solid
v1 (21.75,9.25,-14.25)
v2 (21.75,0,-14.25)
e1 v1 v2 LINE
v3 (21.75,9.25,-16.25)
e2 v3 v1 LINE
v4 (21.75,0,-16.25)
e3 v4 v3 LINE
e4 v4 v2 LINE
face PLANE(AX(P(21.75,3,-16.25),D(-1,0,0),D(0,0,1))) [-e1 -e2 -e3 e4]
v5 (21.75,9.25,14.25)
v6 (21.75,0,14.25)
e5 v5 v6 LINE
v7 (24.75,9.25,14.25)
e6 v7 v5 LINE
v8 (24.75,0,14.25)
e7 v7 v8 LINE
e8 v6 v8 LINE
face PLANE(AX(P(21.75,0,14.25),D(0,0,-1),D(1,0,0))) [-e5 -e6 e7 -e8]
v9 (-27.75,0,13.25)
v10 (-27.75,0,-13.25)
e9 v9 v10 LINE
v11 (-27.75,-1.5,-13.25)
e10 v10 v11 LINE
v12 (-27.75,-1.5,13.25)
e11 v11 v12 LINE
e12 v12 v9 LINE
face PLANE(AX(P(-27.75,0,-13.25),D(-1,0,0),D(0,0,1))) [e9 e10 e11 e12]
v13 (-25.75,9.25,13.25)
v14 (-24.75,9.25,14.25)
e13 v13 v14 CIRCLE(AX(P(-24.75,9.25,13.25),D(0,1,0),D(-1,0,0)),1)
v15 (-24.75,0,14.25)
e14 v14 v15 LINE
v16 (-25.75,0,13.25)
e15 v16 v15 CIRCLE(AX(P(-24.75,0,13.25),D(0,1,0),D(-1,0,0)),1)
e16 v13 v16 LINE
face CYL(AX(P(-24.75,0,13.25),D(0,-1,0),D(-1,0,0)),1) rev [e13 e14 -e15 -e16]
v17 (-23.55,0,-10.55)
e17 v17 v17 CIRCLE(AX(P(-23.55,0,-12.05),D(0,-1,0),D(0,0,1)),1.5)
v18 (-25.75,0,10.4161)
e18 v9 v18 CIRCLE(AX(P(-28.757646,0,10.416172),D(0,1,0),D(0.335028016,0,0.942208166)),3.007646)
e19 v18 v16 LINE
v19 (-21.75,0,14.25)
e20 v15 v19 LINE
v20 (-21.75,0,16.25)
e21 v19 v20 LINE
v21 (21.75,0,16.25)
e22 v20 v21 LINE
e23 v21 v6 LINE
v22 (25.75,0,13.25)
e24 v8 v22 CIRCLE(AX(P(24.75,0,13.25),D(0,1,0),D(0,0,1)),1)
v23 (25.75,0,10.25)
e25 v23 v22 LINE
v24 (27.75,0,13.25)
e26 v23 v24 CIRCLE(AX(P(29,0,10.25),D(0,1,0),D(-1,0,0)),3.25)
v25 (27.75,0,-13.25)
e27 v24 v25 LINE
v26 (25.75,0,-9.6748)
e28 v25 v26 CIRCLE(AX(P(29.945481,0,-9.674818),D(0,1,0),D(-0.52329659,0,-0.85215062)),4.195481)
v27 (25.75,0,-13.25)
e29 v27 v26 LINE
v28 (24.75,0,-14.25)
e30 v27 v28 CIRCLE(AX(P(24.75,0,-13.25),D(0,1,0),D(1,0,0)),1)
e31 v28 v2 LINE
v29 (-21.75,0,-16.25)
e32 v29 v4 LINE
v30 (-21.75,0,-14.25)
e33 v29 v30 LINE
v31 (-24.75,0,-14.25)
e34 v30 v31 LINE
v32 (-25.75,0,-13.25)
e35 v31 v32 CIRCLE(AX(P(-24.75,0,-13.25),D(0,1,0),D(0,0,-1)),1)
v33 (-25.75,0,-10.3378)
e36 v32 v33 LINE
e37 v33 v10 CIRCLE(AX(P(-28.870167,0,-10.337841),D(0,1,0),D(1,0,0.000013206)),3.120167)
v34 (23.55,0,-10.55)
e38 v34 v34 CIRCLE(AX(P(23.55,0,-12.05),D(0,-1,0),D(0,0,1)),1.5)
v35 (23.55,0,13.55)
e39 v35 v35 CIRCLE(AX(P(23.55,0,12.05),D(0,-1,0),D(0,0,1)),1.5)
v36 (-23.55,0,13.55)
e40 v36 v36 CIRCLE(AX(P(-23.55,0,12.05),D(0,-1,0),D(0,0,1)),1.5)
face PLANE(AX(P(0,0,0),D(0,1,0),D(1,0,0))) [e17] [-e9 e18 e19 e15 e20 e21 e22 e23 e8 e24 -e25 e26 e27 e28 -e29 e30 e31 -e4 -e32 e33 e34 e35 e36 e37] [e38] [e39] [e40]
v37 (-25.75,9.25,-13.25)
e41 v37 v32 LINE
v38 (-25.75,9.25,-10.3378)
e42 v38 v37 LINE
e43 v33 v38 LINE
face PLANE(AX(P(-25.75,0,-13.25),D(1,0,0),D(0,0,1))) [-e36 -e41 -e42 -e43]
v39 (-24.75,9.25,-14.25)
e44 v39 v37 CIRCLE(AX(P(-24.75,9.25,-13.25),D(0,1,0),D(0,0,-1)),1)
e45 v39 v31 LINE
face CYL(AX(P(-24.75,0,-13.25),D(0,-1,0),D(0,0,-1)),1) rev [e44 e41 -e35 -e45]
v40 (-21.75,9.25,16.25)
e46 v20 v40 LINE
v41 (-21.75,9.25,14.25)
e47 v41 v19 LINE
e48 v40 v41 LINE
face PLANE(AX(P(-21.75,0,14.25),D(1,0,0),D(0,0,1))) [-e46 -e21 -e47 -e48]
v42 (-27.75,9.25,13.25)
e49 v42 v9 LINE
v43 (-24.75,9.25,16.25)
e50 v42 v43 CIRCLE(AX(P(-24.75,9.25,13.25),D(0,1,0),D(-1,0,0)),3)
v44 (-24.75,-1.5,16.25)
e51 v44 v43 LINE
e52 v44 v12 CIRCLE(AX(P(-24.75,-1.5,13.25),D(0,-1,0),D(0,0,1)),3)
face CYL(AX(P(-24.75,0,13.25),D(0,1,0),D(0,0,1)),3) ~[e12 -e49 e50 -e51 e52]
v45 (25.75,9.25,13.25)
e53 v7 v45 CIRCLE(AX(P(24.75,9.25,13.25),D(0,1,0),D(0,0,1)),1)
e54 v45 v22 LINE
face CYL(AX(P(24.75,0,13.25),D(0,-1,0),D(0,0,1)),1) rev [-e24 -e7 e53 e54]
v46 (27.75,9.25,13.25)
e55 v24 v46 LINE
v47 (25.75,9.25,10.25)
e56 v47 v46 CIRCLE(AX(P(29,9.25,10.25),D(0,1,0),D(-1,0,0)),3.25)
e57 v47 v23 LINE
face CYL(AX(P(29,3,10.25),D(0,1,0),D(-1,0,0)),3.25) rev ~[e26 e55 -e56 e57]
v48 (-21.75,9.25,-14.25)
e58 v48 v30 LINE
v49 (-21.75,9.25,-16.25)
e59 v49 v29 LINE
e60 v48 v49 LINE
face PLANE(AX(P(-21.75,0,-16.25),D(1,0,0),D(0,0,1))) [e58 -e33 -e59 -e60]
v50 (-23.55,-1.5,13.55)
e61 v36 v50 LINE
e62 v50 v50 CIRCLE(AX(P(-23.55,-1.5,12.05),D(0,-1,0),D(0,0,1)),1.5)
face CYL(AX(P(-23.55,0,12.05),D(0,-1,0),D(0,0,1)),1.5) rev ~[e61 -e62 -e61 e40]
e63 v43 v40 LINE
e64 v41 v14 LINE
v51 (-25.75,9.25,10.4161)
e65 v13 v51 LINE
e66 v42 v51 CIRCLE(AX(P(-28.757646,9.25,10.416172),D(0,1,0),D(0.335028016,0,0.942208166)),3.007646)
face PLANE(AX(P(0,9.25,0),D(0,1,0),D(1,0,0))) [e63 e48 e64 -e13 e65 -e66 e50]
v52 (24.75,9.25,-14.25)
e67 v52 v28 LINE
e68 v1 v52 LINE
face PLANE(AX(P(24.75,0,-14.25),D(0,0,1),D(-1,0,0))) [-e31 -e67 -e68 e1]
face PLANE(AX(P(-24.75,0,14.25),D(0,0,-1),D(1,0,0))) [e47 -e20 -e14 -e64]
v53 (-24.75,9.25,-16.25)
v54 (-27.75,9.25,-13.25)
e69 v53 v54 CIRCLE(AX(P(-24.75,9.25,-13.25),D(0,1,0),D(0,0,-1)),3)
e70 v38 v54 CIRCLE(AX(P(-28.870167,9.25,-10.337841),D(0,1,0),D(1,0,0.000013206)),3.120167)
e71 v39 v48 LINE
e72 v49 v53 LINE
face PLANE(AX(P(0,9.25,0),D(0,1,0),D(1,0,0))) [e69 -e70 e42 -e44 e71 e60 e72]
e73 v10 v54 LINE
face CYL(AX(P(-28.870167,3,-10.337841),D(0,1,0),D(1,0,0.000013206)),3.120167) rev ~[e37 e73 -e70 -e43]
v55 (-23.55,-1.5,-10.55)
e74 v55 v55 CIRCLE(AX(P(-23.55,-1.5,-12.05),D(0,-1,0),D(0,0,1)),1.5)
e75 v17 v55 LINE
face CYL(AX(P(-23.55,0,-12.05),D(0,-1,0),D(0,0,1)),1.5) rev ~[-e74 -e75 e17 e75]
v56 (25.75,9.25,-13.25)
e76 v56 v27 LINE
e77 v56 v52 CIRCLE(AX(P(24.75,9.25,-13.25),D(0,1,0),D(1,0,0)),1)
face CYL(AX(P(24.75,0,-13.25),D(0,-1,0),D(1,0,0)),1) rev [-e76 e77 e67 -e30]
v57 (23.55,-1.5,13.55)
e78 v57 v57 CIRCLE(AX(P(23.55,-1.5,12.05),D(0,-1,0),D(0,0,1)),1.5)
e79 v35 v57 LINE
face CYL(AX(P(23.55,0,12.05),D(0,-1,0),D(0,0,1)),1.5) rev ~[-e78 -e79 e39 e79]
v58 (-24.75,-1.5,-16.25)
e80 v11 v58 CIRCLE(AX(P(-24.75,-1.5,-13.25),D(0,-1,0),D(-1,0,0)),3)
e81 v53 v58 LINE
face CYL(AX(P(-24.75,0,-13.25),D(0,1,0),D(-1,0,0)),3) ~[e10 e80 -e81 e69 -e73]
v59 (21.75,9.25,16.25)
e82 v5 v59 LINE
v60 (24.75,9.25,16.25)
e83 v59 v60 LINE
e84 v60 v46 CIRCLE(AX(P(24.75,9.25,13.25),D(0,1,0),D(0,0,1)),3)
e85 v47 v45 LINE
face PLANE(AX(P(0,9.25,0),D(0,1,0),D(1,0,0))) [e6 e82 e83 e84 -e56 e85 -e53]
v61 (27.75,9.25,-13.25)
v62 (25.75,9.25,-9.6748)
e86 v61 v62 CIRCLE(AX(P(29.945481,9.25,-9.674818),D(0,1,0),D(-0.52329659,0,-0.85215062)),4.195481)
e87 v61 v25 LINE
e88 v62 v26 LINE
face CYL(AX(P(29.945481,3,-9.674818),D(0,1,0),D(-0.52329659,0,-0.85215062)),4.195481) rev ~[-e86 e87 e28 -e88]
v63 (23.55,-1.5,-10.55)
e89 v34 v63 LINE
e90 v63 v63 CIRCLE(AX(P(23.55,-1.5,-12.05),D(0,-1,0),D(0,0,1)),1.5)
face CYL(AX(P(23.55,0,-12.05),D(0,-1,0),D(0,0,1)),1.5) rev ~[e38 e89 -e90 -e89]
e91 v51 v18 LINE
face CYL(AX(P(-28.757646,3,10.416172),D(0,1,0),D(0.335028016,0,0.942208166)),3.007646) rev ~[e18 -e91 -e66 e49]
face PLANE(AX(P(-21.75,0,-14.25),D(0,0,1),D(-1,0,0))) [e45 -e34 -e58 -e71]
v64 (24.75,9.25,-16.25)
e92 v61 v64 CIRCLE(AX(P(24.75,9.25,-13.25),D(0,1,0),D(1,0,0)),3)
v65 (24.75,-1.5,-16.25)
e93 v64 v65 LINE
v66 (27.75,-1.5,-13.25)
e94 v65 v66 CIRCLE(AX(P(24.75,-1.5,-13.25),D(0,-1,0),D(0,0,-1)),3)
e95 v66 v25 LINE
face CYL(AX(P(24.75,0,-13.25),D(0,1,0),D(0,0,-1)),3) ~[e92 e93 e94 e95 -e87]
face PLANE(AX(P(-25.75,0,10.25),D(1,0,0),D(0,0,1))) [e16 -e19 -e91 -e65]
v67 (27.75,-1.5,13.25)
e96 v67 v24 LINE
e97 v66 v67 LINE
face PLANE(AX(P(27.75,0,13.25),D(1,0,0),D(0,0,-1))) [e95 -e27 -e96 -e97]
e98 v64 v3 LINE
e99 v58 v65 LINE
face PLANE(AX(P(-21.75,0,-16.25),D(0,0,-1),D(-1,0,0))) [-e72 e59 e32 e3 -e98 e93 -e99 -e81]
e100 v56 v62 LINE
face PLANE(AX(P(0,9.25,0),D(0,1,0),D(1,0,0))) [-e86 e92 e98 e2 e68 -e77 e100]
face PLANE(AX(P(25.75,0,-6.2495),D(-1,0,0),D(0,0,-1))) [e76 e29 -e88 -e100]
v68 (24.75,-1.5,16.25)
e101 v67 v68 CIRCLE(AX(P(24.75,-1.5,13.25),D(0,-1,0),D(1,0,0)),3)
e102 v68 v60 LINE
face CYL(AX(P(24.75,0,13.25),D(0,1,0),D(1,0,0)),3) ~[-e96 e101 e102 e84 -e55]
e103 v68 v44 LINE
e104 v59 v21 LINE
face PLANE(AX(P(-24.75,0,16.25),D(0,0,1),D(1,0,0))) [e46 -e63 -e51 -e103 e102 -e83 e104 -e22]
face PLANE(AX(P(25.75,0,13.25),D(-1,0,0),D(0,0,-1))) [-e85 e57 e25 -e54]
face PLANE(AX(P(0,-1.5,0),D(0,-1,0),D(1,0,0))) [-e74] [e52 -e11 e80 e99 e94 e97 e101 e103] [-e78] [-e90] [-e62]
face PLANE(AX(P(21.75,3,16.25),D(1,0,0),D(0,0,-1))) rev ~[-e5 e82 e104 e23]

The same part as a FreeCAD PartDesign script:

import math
import FreeCAD as App
import Part
import Sketcher

doc = App.newDocument("Part")
body = doc.addObject("PartDesign::Body", "Body")
body.AllowCompound = True

# Sketch on XZ plane
sketch1 = body.newObject("Sketcher::SketchObject", "Sketch")
sketch1.AttachmentSupport = (doc.getObject("XZ_Plane"), [""])
sketch1.MapMode = "FlatFace"
sketch1.addGeometry([
    Part.ArcOfCircle(Part.Circle(App.Vector(24.8, 13.2, 0), App.Vector(0, 0, 1), 1), math.radians(0), math.radians(90)),  # 0
    Part.LineSegment(App.Vector(24.8, 14.2, 0), App.Vector(17.8, 14.2, 0)),  # 1
    Part.ArcOfCircle(Part.Circle(App.Vector(15.4, 24, 0), App.Vector(0, 0, 1), 10), math.radians(-76), math.radians(-51)),  # 2
    Part.LineSegment(App.Vector(21.8, 16.2, 0), App.Vector(24.8, 16.2, 0)),  # 3
    Part.ArcOfCircle(Part.Circle(App.Vector(24.8, 13.2, 0), App.Vector(0, 0, 1), 3), math.radians(0), math.radians(90)),  # 4
    Part.LineSegment(App.Vector(27.8, 13.2, 0), App.Vector(27.8, 10.2, 0)),  # 5
    Part.ArcOfCircle(Part.Circle(App.Vector(35.5, 3.9, 0), App.Vector(0, 0, 1), 10), math.radians(141), math.radians(166)),  # 6
    Part.LineSegment(App.Vector(25.8, 6.2, 0), App.Vector(25.8, 13.2, 0)),  # 7
    Part.ArcOfCircle(Part.Circle(App.Vector(35.5, -3.9, 0), App.Vector(0, 0, 1), 10), math.radians(-166), math.radians(-141)),  # 8
    Part.LineSegment(App.Vector(27.8, -10.2, 0), App.Vector(27.8, -13.2, 0)),  # 9
    Part.ArcOfCircle(Part.Circle(App.Vector(24.8, -13.2, 0), App.Vector(0, 0, 1), 3), math.radians(-90), math.radians(0)),  # 10
    Part.LineSegment(App.Vector(24.8, -16.2, 0), App.Vector(21.8, -16.2, 0)),  # 11
    Part.ArcOfCircle(Part.Circle(App.Vector(15.4, -24, 0), App.Vector(0, 0, 1), 10), math.radians(51), math.radians(76)),  # 12
    Part.LineSegment(App.Vector(17.8, -14.2, 0), App.Vector(24.8, -14.2, 0)),  # 13
    Part.ArcOfCircle(Part.Circle(App.Vector(24.8, -13.2, 0), App.Vector(0, 0, 1), 1), math.radians(-90), math.radians(0)),  # 14
    Part.LineSegment(App.Vector(25.8, -13.2, 0), App.Vector(25.8, -6.2, 0)),  # 15
    Part.LineSegment(App.Vector(-21.8, 16.2, 0), App.Vector(-21.8, 14.2, 0)),  # 16
    Part.LineSegment(App.Vector(-21.8, 14.2, 0), App.Vector(-24.8, 14.2, 0)),  # 17
    Part.ArcOfCircle(Part.Circle(App.Vector(-24.8, 13.2, 0), App.Vector(0, 0, 1), 1), math.radians(90), math.radians(180)),  # 18
    Part.LineSegment(App.Vector(-25.8, 13.2, 0), App.Vector(-25.8, 6.2, 0)),  # 19
    Part.ArcOfCircle(Part.Circle(App.Vector(-35.5, 3.9, 0), App.Vector(0, 0, 1), 10), math.radians(14), math.radians(39)),  # 20
    Part.LineSegment(App.Vector(-27.8, 10.2, 0), App.Vector(-27.8, 13.2, 0)),  # 21
    Part.ArcOfCircle(Part.Circle(App.Vector(-24.8, 13.2, 0), App.Vector(0, 0, 1), 3), math.radians(90), math.radians(180)),  # 22
    Part.LineSegment(App.Vector(-24.8, 16.2, 0), App.Vector(-21.8, 16.2, 0)),  # 23
    Part.LineSegment(App.Vector(-21.8, -14.2, 0), App.Vector(-21.8, -16.2, 0)),  # 24
    Part.LineSegment(App.Vector(-21.8, -16.2, 0), App.Vector(-24.8, -16.2, 0)),  # 25
    Part.ArcOfCircle(Part.Circle(App.Vector(-24.8, -13.2, 0), App.Vector(0, 0, 1), 3), math.radians(180), math.radians(270)),  # 26
    Part.LineSegment(App.Vector(-27.8, -13.2, 0), App.Vector(-27.8, -10.2, 0)),  # 27
    Part.ArcOfCircle(Part.Circle(App.Vector(-35.5, -3.9, 0), App.Vector(0, 0, 1), 10), math.radians(-39), math.radians(-14)),  # 28
    Part.LineSegment(App.Vector(-25.8, -6.2, 0), App.Vector(-25.8, -13.2, 0)),  # 29
    Part.ArcOfCircle(Part.Circle(App.Vector(-24.8, -13.2, 0), App.Vector(0, 0, 1), 1), math.radians(180), math.radians(270)),  # 30
    Part.LineSegment(App.Vector(-24.8, -14.2, 0), App.Vector(-21.8, -14.2, 0)),  # 31
], False)
sketch1.addConstraint([
    Sketcher.Constraint("Tangent", 0, 2, 1, 1),
    Sketcher.Constraint("Coincident", 1, 2, 2, 1),
    Sketcher.Constraint("Coincident", 2, 2, 3, 1),
    Sketcher.Constraint("Tangent", 3, 2, 4, 2),
    Sketcher.Constraint("Tangent", 4, 1, 5, 1),
    Sketcher.Constraint("Coincident", 5, 2, 6, 1),
    Sketcher.Constraint("Coincident", 6, 2, 7, 1),
    Sketcher.Constraint("Tangent", 7, 2, 0, 1),
    Sketcher.Constraint("Coincident", 8, 2, 9, 1),
    Sketcher.Constraint("Tangent", 9, 2, 10, 2),
    Sketcher.Constraint("Tangent", 10, 1, 11, 1),
    Sketcher.Constraint("Coincident", 11, 2, 12, 1),
    Sketcher.Constraint("Coincident", 12, 2, 13, 1),
    Sketcher.Constraint("Tangent", 13, 2, 14, 1),
    Sketcher.Constraint("Tangent", 14, 2, 15, 1),
    Sketcher.Constraint("Coincident", 15, 2, 8, 1),
    Sketcher.Constraint("Coincident", 16, 2, 17, 1),
    Sketcher.Constraint("Tangent", 17, 2, 18, 1),
    Sketcher.Constraint("Tangent", 18, 2, 19, 1),
    Sketcher.Constraint("Coincident", 19, 2, 20, 1),
    Sketcher.Constraint("Coincident", 20, 2, 21, 1),
    Sketcher.Constraint("Tangent", 21, 2, 22, 2),
    Sketcher.Constraint("Tangent", 22, 1, 23, 1),
    Sketcher.Constraint("Coincident", 23, 2, 16, 1),
    Sketcher.Constraint("Coincident", 24, 2, 25, 1),
    Sketcher.Constraint("Tangent", 25, 2, 26, 2),
    Sketcher.Constraint("Tangent", 26, 1, 27, 1),
    Sketcher.Constraint("Coincident", 27, 2, 28, 1),
    Sketcher.Constraint("Coincident", 28, 2, 29, 1),
    Sketcher.Constraint("Tangent", 29, 2, 30, 1),
    Sketcher.Constraint("Tangent", 30, 2, 31, 1),
    Sketcher.Constraint("Coincident", 31, 2, 24, 1),
    Sketcher.Constraint("Horizontal", 1),
    Sketcher.Constraint("Horizontal", 3),
    Sketcher.Constraint("Vertical", 5),
    Sketcher.Constraint("Vertical", 7),
    Sketcher.Constraint("Vertical", 9),
    Sketcher.Constraint("Horizontal", 11),
    Sketcher.Constraint("Horizontal", 13),
    Sketcher.Constraint("Vertical", 15),
    Sketcher.Constraint("Vertical", 16),
    Sketcher.Constraint("Horizontal", 17),
    Sketcher.Constraint("Vertical", 19),
    Sketcher.Constraint("Vertical", 21),
    Sketcher.Constraint("Horizontal", 23),
    Sketcher.Constraint("Vertical", 24),
    Sketcher.Constraint("Horizontal", 25),
    Sketcher.Constraint("Vertical", 27),
    Sketcher.Constraint("Vertical", 29),
    Sketcher.Constraint("Horizontal", 31),
    Sketcher.Constraint("Coincident", 4, 3, 0, 3),
    Sketcher.Constraint("Coincident", 14, 3, 10, 3),
    Sketcher.Constraint("Coincident", 22, 3, 18, 3),
    Sketcher.Constraint("Coincident", 30, 3, 26, 3),
    Sketcher.Constraint("Equal", 2, 6),
    Sketcher.Constraint("Equal", 6, 8),
    Sketcher.Constraint("Equal", 4, 10),
    Sketcher.Constraint("Equal", 8, 12),
    Sketcher.Constraint("Equal", 0, 14),
    Sketcher.Constraint("Equal", 14, 18),
    Sketcher.Constraint("Equal", 12, 20),
    Sketcher.Constraint("Equal", 10, 22),
    Sketcher.Constraint("Equal", 22, 26),
    Sketcher.Constraint("Equal", 20, 28),
    Sketcher.Constraint("Equal", 18, 30),
    Sketcher.Constraint("Symmetric", 10, 3, 18, 3, -1, 1),
    Sketcher.Constraint("Symmetric", 8, 3, 20, 3, -1, 1),
    Sketcher.Constraint("Symmetric", 0, 3, 26, 3, -1, 1),
    Sketcher.Constraint("Symmetric", 6, 3, 28, 3, -1, 1),
    Sketcher.Constraint("Symmetric", 0, 3, 18, 3, -2),
    Sketcher.Constraint("Symmetric", 6, 3, 20, 3, -2),
    Sketcher.Constraint("Symmetric", 2, 3, 12, 3, -1),
    Sketcher.Constraint("Vertical", 23, 2, 24, 2),
    Sketcher.Constraint("Equal", 11, 17),
    Sketcher.Constraint("Equal", 31, 5),
    Sketcher.Constraint("Equal", 13, 7),
    Sketcher.Constraint("Radius", 0, 1.0),
    Sketcher.Constraint("Radius", 2, 10.0),
    Sketcher.Constraint("Radius", 4, 3.0),
    Sketcher.Constraint("DistanceX", 3, 1, 3, 2, 3.0),
    Sketcher.Constraint("DistanceX", 1, 2, 2, 2, 4.0),
    Sketcher.Constraint("DistanceY", -1, 1, 0, 2, 14.25),
    Sketcher.Constraint("DistanceX", -1, 1, 6, 2, 25.75),
])
pad1 = body.newObject("PartDesign::Pad", "Pad")
pad1.Profile = sketch1
pad1.Length = 3
pad1.Reversed = True

# Sketch on XZ plane
sketch2 = body.newObject("Sketcher::SketchObject", "Sketch001")
sketch2.AttachmentSupport = (doc.getObject("XZ_Plane"), [""])
sketch2.MapMode = "FlatFace"
sketch2.addGeometry([
    Part.LineSegment(App.Vector(-27.8, 13.2, 0), App.Vector(-27.8, -13.2, 0)),  # 0
    Part.ArcOfCircle(Part.Circle(App.Vector(-24.8, -13.2, 0), App.Vector(0, 0, 1), 3), math.radians(180), math.radians(270)),  # 1
    Part.LineSegment(App.Vector(-24.8, -16.2, 0), App.Vector(24.8, -16.2, 0)),  # 2
    Part.ArcOfCircle(Part.Circle(App.Vector(24.8, -13.2, 0), App.Vector(0, 0, 1), 3), math.radians(-90), math.radians(0)),  # 3
    Part.LineSegment(App.Vector(27.8, -13.2, 0), App.Vector(27.8, 13.2, 0)),  # 4
    Part.ArcOfCircle(Part.Circle(App.Vector(24.8, 13.2, 0), App.Vector(0, 0, 1), 3), math.radians(0), math.radians(90)),  # 5
    Part.LineSegment(App.Vector(24.8, 16.2, 0), App.Vector(-24.8, 16.2, 0)),  # 6
    Part.ArcOfCircle(Part.Circle(App.Vector(-24.8, 13.2, 0), App.Vector(0, 0, 1), 3), math.radians(90), math.radians(180)),  # 7
], False)
sketch2.addConstraint([
    Sketcher.Constraint("Tangent", 0, 2, 1, 1),
    Sketcher.Constraint("Tangent", 1, 2, 2, 1),
    Sketcher.Constraint("Tangent", 2, 2, 3, 1),
    Sketcher.Constraint("Tangent", 3, 2, 4, 1),
    Sketcher.Constraint("Tangent", 4, 2, 5, 1),
    Sketcher.Constraint("Tangent", 5, 2, 6, 1),
    Sketcher.Constraint("Tangent", 6, 2, 7, 1),
    Sketcher.Constraint("Tangent", 7, 2, 0, 1),
    Sketcher.Constraint("Vertical", 0),
    Sketcher.Constraint("Horizontal", 2),
    Sketcher.Constraint("Vertical", 4),
    Sketcher.Constraint("Horizontal", 6),
    Sketcher.Constraint("Equal", 1, 3),
    Sketcher.Constraint("Equal", 3, 5),
    Sketcher.Constraint("Equal", 5, 7),
    Sketcher.Constraint("Symmetric", 1, 3, 5, 3, -1, 1),
    Sketcher.Constraint("Radius", 1, 3.0),
    Sketcher.Constraint("DistanceX", 2, 1, 2, 2, 49.5),
    Sketcher.Constraint("DistanceY", 0, 2, 0, 1, 26.5),
])
pad2 = body.newObject("PartDesign::Pad", "Pad001")
pad2.Profile = sketch2
pad2.Length = 1.5

# Sketch on XZ plane
sketch3 = body.newObject("Sketcher::SketchObject", "Sketch002")
sketch3.AttachmentSupport = (doc.getObject("XZ_Plane"), [""])
sketch3.MapMode = "FlatFace"
sketch3.addGeometry([
    Part.Circle(App.Vector(-23.6, 12.1, 0), App.Vector(0, 0, 1), 1.5),
    Part.Circle(App.Vector(-23.6, -12.1, 0), App.Vector(0, 0, 1), 1.5),
    Part.Circle(App.Vector(23.6, -12.1, 0), App.Vector(0, 0, 1), 1.5),
    Part.Circle(App.Vector(23.6, 12.1, 0), App.Vector(0, 0, 1), 1.5),
], False)
sketch3.addConstraint([
    Sketcher.Constraint("Equal", 0, 1),
    Sketcher.Constraint("Equal", 1, 2),
    Sketcher.Constraint("Equal", 2, 3),
    Sketcher.Constraint("Symmetric", 0, 3, 2, 3, -1, 1),
    Sketcher.Constraint("Symmetric", 1, 3, 3, 3, -1, 1),
    Sketcher.Constraint("Symmetric", 1, 3, 2, 3, -2),
    Sketcher.Constraint("Diameter", 0, 3.0),
    Sketcher.Constraint("DistanceY", 1, 3, 0, 3, 24.1),
    Sketcher.Constraint("DistanceX", 1, 3, 2, 3, 47.1),
])
doc.recompute()
hole = body.newObject("PartDesign::Hole", "Hole")
hole.Profile = sketch3
hole.ThreadType = "None"
hole.Diameter = 3
hole.DepthType = "ThroughAll"
hole.Reversed = True

# Sketch on XZ plane
sketch4 = body.newObject("Sketcher::SketchObject", "Sketch003")
sketch4.AttachmentSupport = (doc.getObject("XZ_Plane"), [""])
sketch4.MapMode = "FlatFace"
sketch4.AttachmentOffset = App.Placement(App.Vector(0, 0, -3), App.Rotation())
sketch4.addGeometry([
    Part.LineSegment(App.Vector(21.8, 16.2, 0), App.Vector(21.8, 14.2, 0)),  # 0
    Part.LineSegment(App.Vector(21.8, 14.2, 0), App.Vector(17.8, 14.2, 0)),  # 1
    Part.ArcOfCircle(Part.Circle(App.Vector(15.4, 24, 0), App.Vector(0, 0, 1), 10), math.radians(-76), math.radians(-51)),  # 2
    Part.ArcOfCircle(Part.Circle(App.Vector(-35.5, -3.9, 0), App.Vector(0, 0, 1), 10), math.radians(-39), math.radians(-14)),  # 3
    Part.LineSegment(App.Vector(-25.8, -6.2, 0), App.Vector(-25.8, -10.3, 0)),  # 4
    Part.ArcOfCircle(Part.Circle(App.Vector(-28.9, -10.3, 0), App.Vector(0, 0, 1), 3.1), math.radians(-69), math.radians(0)),  # 5
    Part.LineSegment(App.Vector(-27.8, -13.2, 0), App.Vector(-27.8, -10.2, 0)),  # 6
    Part.LineSegment(App.Vector(-27.8, 10.2, 0), App.Vector(-27.8, 13.2, 0)),  # 7
    Part.ArcOfCircle(Part.Circle(App.Vector(-28.8, 10.4, 0), App.Vector(0, 0, 1), 3), math.radians(0), math.radians(70)),  # 8
    Part.LineSegment(App.Vector(-25.8, 10.4, 0), App.Vector(-25.8, 6.2, 0)),  # 9
    Part.ArcOfCircle(Part.Circle(App.Vector(-35.5, 3.9, 0), App.Vector(0, 0, 1), 10), math.radians(14), math.radians(39)),  # 10
    Part.ArcOfCircle(Part.Circle(App.Vector(35.5, 3.9, 0), App.Vector(0, 0, 1), 10), math.radians(141), math.radians(166)),  # 11
    Part.LineSegment(App.Vector(25.8, 6.2, 0), App.Vector(25.8, 10.2, 0)),  # 12
    Part.ArcOfCircle(Part.Circle(App.Vector(29, 10.2, 0), App.Vector(0, 0, 1), 3.2), math.radians(113), math.radians(180)),  # 13
    Part.LineSegment(App.Vector(27.8, 13.2, 0), App.Vector(27.8, 10.2, 0)),  # 14
    Part.ArcOfCircle(Part.Circle(App.Vector(29.9, -9.7, 0), App.Vector(0, 0, 1), 4.2), math.radians(180), math.radians(238)),  # 15
    Part.LineSegment(App.Vector(25.8, -9.7, 0), App.Vector(25.8, -6.2, 0)),  # 16
    Part.ArcOfCircle(Part.Circle(App.Vector(35.5, -3.9, 0), App.Vector(0, 0, 1), 10), math.radians(-166), math.radians(-141)),  # 17
    Part.LineSegment(App.Vector(27.8, -10.2, 0), App.Vector(27.8, -13.2, 0)),  # 18
    Part.ArcOfCircle(Part.Circle(App.Vector(15.4, -24, 0), App.Vector(0, 0, 1), 10), math.radians(51), math.radians(76)),  # 19
    Part.LineSegment(App.Vector(17.8, -14.2, 0), App.Vector(21.8, -14.2, 0)),  # 20
    Part.LineSegment(App.Vector(21.8, -14.2, 0), App.Vector(21.8, -16.2, 0)),  # 21
], False)
sketch4.addConstraint([
    Sketcher.Constraint("Coincident", 0, 2, 1, 1),
    Sketcher.Constraint("Coincident", 1, 2, 2, 1),
    Sketcher.Constraint("Coincident", 2, 2, 0, 1),
    Sketcher.Constraint("Coincident", 3, 2, 4, 1),
    Sketcher.Constraint("Tangent", 4, 2, 5, 2),
    Sketcher.Constraint("Coincident", 5, 1, 6, 1),
    Sketcher.Constraint("Coincident", 6, 2, 3, 1),
    Sketcher.Constraint("Coincident", 7, 2, 8, 2),
    Sketcher.Constraint("Tangent", 8, 1, 9, 1),
    Sketcher.Constraint("Coincident", 9, 2, 10, 1),
    Sketcher.Constraint("Coincident", 10, 2, 7, 1),
    Sketcher.Constraint("Coincident", 11, 2, 12, 1),
    Sketcher.Constraint("Tangent", 12, 2, 13, 2),
    Sketcher.Constraint("Coincident", 13, 1, 14, 1),
    Sketcher.Constraint("Coincident", 14, 2, 11, 1),
    Sketcher.Constraint("Tangent", 15, 1, 16, 1),
    Sketcher.Constraint("Coincident", 16, 2, 17, 1),
    Sketcher.Constraint("Coincident", 17, 2, 18, 1),
    Sketcher.Constraint("Coincident", 18, 2, 15, 2),
    Sketcher.Constraint("Coincident", 19, 2, 20, 1),
    Sketcher.Constraint("Coincident", 20, 2, 21, 1),
    Sketcher.Constraint("Coincident", 21, 2, 19, 1),
    Sketcher.Constraint("Vertical", 0),
    Sketcher.Constraint("Horizontal", 1),
    Sketcher.Constraint("Vertical", 4),
    Sketcher.Constraint("Vertical", 6),
    Sketcher.Constraint("Vertical", 7),
    Sketcher.Constraint("Vertical", 9),
    Sketcher.Constraint("Vertical", 12),
    Sketcher.Constraint("Vertical", 14),
    Sketcher.Constraint("Vertical", 16),
    Sketcher.Constraint("Vertical", 18),
    Sketcher.Constraint("Horizontal", 20),
    Sketcher.Constraint("Vertical", 21),
    Sketcher.Constraint("Equal", 2, 3),
    Sketcher.Constraint("Equal", 3, 10),
    Sketcher.Constraint("Equal", 10, 11),
    Sketcher.Constraint("Equal", 11, 17),
    Sketcher.Constraint("Equal", 17, 19),
    Sketcher.Constraint("Symmetric", 3, 3, 11, 3, -1, 1),
    Sketcher.Constraint("Symmetric", 10, 3, 17, 3, -1, 1),
    Sketcher.Constraint("Symmetric", 5, 1, 13, 1, -1, 1),
    Sketcher.Constraint("Symmetric", 7, 2, 18, 2, -1, 1),
    Sketcher.Constraint("Symmetric", 10, 3, 11, 3, -2),
    Sketcher.Constraint("Symmetric", 7, 2, 13, 1, -2),
    Sketcher.Constraint("Symmetric", 2, 3, 19, 3, -1),
    Sketcher.Constraint("Symmetric", 0, 2, 20, 2, -1),
    Sketcher.Constraint("Horizontal", 13, 3, 10, 2),
    Sketcher.Constraint("Horizontal", 9, 2, 11, 2),
    Sketcher.Constraint("Horizontal", 3, 2, 16, 2),
    Sketcher.Constraint("Vertical", 4, 2, 8, 1),
    Sketcher.Constraint("Equal", 20, 12),
    Sketcher.Constraint("Radius", 2, 10.0),
    Sketcher.Constraint("DistanceX", 1, 2, 1, 1, 4.0),
    Sketcher.Constraint("DistanceY", 0, 2, 0, 1, 2.0),
    Sketcher.Constraint("DistanceY", 6, 1, 6, 2, 3.0),
    Sketcher.Constraint("Radius", 13, 3.25),
    Sketcher.Constraint("DistanceX", -1, 1, 13, 3, 29.0),
    Sketcher.Constraint("DistanceY", 13, 3, 0, 2, 4.0),
    Sketcher.Constraint("DistanceX", 0, 2, 11, 2, 4.0),
    Sketcher.Constraint("Radius", 5, 3.1203),
    Sketcher.Constraint("Radius", 8, 3.0077),
    Sketcher.Constraint("Radius", 15, 4.1955),
    Sketcher.Constraint("DistanceY", 6, 2, 7, 2, 23.5),
])
pocket1 = body.newObject("PartDesign::Pocket", "Pocket")
pocket1.Profile = sketch4
pocket1.Length = 3
pocket1.Reversed = True

# Sketch on XZ plane
sketch5 = body.newObject("Sketcher::SketchObject", "Sketch004")
sketch5.AttachmentSupport = (doc.getObject("XZ_Plane"), [""])
sketch5.MapMode = "FlatFace"
sketch5.AttachmentOffset = App.Placement(App.Vector(0, 0, -3), App.Rotation())
sketch5.addGeometry([
    Part.ArcOfCircle(Part.Circle(App.Vector(29, 10.2, 0), App.Vector(0, 0, 1), 3.2), math.radians(113), math.radians(180)),  # 0
    Part.LineSegment(App.Vector(25.8, 10.2, 0), App.Vector(25.8, 13.2, 0)),  # 1
    Part.ArcOfCircle(Part.Circle(App.Vector(24.8, 13.2, 0), App.Vector(0, 0, 1), 1), math.radians(0), math.radians(90)),  # 2
    Part.LineSegment(App.Vector(24.8, 14.2, 0), App.Vector(21.8, 14.2, 0)),  # 3
    Part.LineSegment(App.Vector(21.8, 14.2, 0), App.Vector(21.8, 16.2, 0)),  # 4
    Part.LineSegment(App.Vector(21.8, 16.2, 0), App.Vector(24.8, 16.2, 0)),  # 5
    Part.ArcOfCircle(Part.Circle(App.Vector(24.8, 13.2, 0), App.Vector(0, 0, 1), 3), math.radians(0), math.radians(90)),  # 6
    Part.LineSegment(App.Vector(-21.8, 16.2, 0), App.Vector(-21.8, 14.2, 0)),  # 7
    Part.LineSegment(App.Vector(-21.8, 14.2, 0), App.Vector(-24.8, 14.2, 0)),  # 8
    Part.ArcOfCircle(Part.Circle(App.Vector(-24.8, 13.2, 0), App.Vector(0, 0, 1), 1), math.radians(90), math.radians(180)),  # 9
    Part.LineSegment(App.Vector(-25.8, 13.2, 0), App.Vector(-25.8, 10.4, 0)),  # 10
    Part.ArcOfCircle(Part.Circle(App.Vector(-28.8, 10.4, 0), App.Vector(0, 0, 1), 3), math.radians(0), math.radians(70)),  # 11
    Part.ArcOfCircle(Part.Circle(App.Vector(-24.8, 13.2, 0), App.Vector(0, 0, 1), 3), math.radians(90), math.radians(180)),  # 12
    Part.LineSegment(App.Vector(-24.8, 16.2, 0), App.Vector(-21.8, 16.2, 0)),  # 13
    Part.ArcOfCircle(Part.Circle(App.Vector(-28.9, -10.3, 0), App.Vector(0, 0, 1), 3.1), math.radians(-69), math.radians(0)),  # 14
    Part.LineSegment(App.Vector(-25.8, -10.3, 0), App.Vector(-25.8, -13.2, 0)),  # 15
    Part.ArcOfCircle(Part.Circle(App.Vector(-24.8, -13.2, 0), App.Vector(0, 0, 1), 1), math.radians(180), math.radians(270)),  # 16
    Part.LineSegment(App.Vector(-24.8, -14.2, 0), App.Vector(-21.8, -14.2, 0)),  # 17
    Part.LineSegment(App.Vector(-21.8, -14.2, 0), App.Vector(-21.8, -16.2, 0)),  # 18
    Part.LineSegment(App.Vector(-21.8, -16.2, 0), App.Vector(-24.8, -16.2, 0)),  # 19
    Part.ArcOfCircle(Part.Circle(App.Vector(-24.8, -13.2, 0), App.Vector(0, 0, 1), 3), math.radians(180), math.radians(270)),  # 20
    Part.ArcOfCircle(Part.Circle(App.Vector(29.9, -9.7, 0), App.Vector(0, 0, 1), 4.2), math.radians(180), math.radians(238)),  # 21
    Part.ArcOfCircle(Part.Circle(App.Vector(24.8, -13.2, 0), App.Vector(0, 0, 1), 3), math.radians(-90), math.radians(0)),  # 22
    Part.LineSegment(App.Vector(24.8, -16.2, 0), App.Vector(21.8, -16.2, 0)),  # 23
    Part.LineSegment(App.Vector(21.8, -16.2, 0), App.Vector(21.8, -14.2, 0)),  # 24
    Part.LineSegment(App.Vector(21.8, -14.2, 0), App.Vector(24.8, -14.2, 0)),  # 25
    Part.ArcOfCircle(Part.Circle(App.Vector(24.8, -13.2, 0), App.Vector(0, 0, 1), 1), math.radians(-90), math.radians(0)),  # 26
    Part.LineSegment(App.Vector(25.8, -13.2, 0), App.Vector(25.8, -9.7, 0)),  # 27
], False)
sketch5.addConstraint([
    Sketcher.Constraint("Tangent", 0, 2, 1, 1),
    Sketcher.Constraint("Tangent", 1, 2, 2, 1),
    Sketcher.Constraint("Tangent", 2, 2, 3, 1),
    Sketcher.Constraint("Coincident", 3, 2, 4, 1),
    Sketcher.Constraint("Coincident", 4, 2, 5, 1),
    Sketcher.Constraint("Tangent", 5, 2, 6, 2),
    Sketcher.Constraint("Coincident", 6, 1, 0, 1),
    Sketcher.Constraint("Coincident", 7, 2, 8, 1),
    Sketcher.Constraint("Tangent", 8, 2, 9, 1),
    Sketcher.Constraint("Tangent", 9, 2, 10, 1),
    Sketcher.Constraint("Tangent", 10, 2, 11, 1),
    Sketcher.Constraint("Coincident", 11, 2, 12, 2),
    Sketcher.Constraint("Tangent", 12, 1, 13, 1),
    Sketcher.Constraint("Coincident", 13, 2, 7, 1),
    Sketcher.Constraint("Tangent", 14, 2, 15, 1),
    Sketcher.Constraint("Tangent", 15, 2, 16, 1),
    Sketcher.Constraint("Tangent", 16, 2, 17, 1),
    Sketcher.Constraint("Coincident", 17, 2, 18, 1),
    Sketcher.Constraint("Coincident", 18, 2, 19, 1),
    Sketcher.Constraint("Tangent", 19, 2, 20, 2),
    Sketcher.Constraint("Coincident", 20, 1, 14, 1),
    Sketcher.Constraint("Coincident", 21, 2, 22, 2),
    Sketcher.Constraint("Tangent", 22, 1, 23, 1),
    Sketcher.Constraint("Coincident", 23, 2, 24, 1),
    Sketcher.Constraint("Coincident", 24, 2, 25, 1),
    Sketcher.Constraint("Tangent", 25, 2, 26, 1),
    Sketcher.Constraint("Tangent", 26, 2, 27, 1),
    Sketcher.Constraint("Tangent", 27, 2, 21, 1),
    Sketcher.Constraint("Vertical", 1),
    Sketcher.Constraint("Horizontal", 3),
    Sketcher.Constraint("Vertical", 4),
    Sketcher.Constraint("Horizontal", 5),
    Sketcher.Constraint("Vertical", 7),
    Sketcher.Constraint("Horizontal", 8),
    Sketcher.Constraint("Vertical", 10),
    Sketcher.Constraint("Horizontal", 13),
    Sketcher.Constraint("Vertical", 15),
    Sketcher.Constraint("Horizontal", 17),
    Sketcher.Constraint("Vertical", 18),
    Sketcher.Constraint("Horizontal", 19),
    Sketcher.Constraint("Horizontal", 23),
    Sketcher.Constraint("Vertical", 24),
    Sketcher.Constraint("Horizontal", 25),
    Sketcher.Constraint("Vertical", 27),
    Sketcher.Constraint("Coincident", 6, 3, 2, 3),
    Sketcher.Constraint("Coincident", 12, 3, 9, 3),
    Sketcher.Constraint("Coincident", 20, 3, 16, 3),
    Sketcher.Constraint("Coincident", 26, 3, 22, 3),
    Sketcher.Constraint("Equal", 2, 9),
    Sketcher.Constraint("Equal", 6, 12),
    Sketcher.Constraint("Equal", 9, 16),
    Sketcher.Constraint("Equal", 12, 20),
    Sketcher.Constraint("Equal", 20, 22),
    Sketcher.Constraint("Equal", 16, 26),
    Sketcher.Constraint("Symmetric", 2, 3, 16, 3, -1, 1),
    Sketcher.Constraint("Symmetric", 9, 3, 22, 3, -1, 1),
    Sketcher.Constraint("Symmetric", 2, 3, 9, 3, -2),
    Sketcher.Constraint("Horizontal", 1, 2, 6, 1),
    Sketcher.Constraint("Horizontal", 9, 2, 11, 2),
    Sketcher.Constraint("Horizontal", 15, 2, 20, 1),
    Sketcher.Constraint("Horizontal", 20, 1, 21, 2),
    Sketcher.Constraint("Vertical", 13, 2, 17, 2),
    Sketcher.Constraint("Vertical", 4, 2, 23, 2),
    Sketcher.Constraint("Equal", 5, 8),
    Sketcher.Constraint("Equal", 25, 1),
    Sketcher.Constraint("Radius", 2, 1.0),
    Sketcher.Constraint("Radius", 6, 3.0),
    Sketcher.Constraint("DistanceX", 3, 2, 3, 1, 3.0),
    Sketcher.Constraint("DistanceX", -1, 1, 0, 3, 29.0),
    Sketcher.Constraint("Radius", 11, 3.0077),
    Sketcher.Constraint("Radius", 14, 3.1203),
    Sketcher.Constraint("Radius", 21, 4.1955),
    Sketcher.Constraint("DistanceY", 16, 3, 9, 3, 26.5),
])
pad3 = body.newObject("PartDesign::Pad", "Pad002")
pad3.Profile = sketch5
pad3.Length = 6.25
pad3.Reversed = True

doc.recompute()
